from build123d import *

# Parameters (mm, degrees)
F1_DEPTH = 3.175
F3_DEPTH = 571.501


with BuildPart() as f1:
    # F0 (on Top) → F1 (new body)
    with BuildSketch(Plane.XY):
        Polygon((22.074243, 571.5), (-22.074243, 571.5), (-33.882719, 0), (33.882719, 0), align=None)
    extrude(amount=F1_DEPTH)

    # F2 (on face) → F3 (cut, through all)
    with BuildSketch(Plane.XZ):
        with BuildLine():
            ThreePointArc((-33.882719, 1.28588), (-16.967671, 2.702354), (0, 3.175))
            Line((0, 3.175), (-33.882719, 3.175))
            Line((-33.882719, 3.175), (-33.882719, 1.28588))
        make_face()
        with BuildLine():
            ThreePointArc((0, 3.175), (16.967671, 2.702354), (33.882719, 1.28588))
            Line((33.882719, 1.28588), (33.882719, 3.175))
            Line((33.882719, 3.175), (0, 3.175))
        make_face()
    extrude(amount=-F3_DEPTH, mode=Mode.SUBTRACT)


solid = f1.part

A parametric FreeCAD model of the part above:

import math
import FreeCAD as App
import Part
import Sketcher
Q = App.Units.Quantity


def add_polygon(sketch, points):
    """Adds a closed chain of lines whose ends are joined by coincident constraints."""
    first, n = sketch.GeometryCount, len(points)
    for a, b in zip(points, points[1:] + points[:1]):
        sketch.addGeometry(Part.LineSegment(App.Vector(*a, 0), App.Vector(*b, 0)), False)
    for i in range(n):
        sketch.addConstraint(Sketcher.Constraint("Coincident", first + i, 2, first + (i + 1) % n, 1))

doc = App.newDocument("Part")
body = doc.addObject("PartDesign::Body", "Body")

sketch1 = doc.addObject("Sketcher::SketchObject", "Sketch")
body.addObject(sketch1)
sketch1.AttachmentSupport = (doc.XY_Plane, [""])
sketch1.MapMode = "FlatFace"
add_polygon(sketch1, [(22, 572), (-22, 572), (-34, 0), (34, 0)])
sketch1.addConstraint([
    Sketcher.Constraint("Horizontal", 0),
    Sketcher.Constraint("Horizontal", 2),
    Sketcher.Constraint("Symmetric", 1, 2, 2, 2, -1, 1),
    Sketcher.Constraint("Equal", 1, 3),
    Sketcher.Constraint("DistanceY", -1, 1, 0, 2, Q("22.5 in")),
    Sketcher.Constraint("DistanceX", 2, 1, 2, 2, Q("67.765438 mm")),
    Sketcher.Constraint("Distance", 1, Q("571.621982 mm")),
])
pad1 = doc.addObject("PartDesign::Pad", "Pad")
body.addObject(pad1)
pad1.Profile = sketch1
pad1.Length = Q("0.125 in")

sketch2 = doc.addObject("Sketcher::SketchObject", "Sketch001")
body.addObject(sketch2)
sketch2.AttachmentSupport = (doc.XZ_Plane, [""])
sketch2.MapMode = "FlatFace"
sketch2.addGeometry([
    Part.ArcOfCircle(Part.Circle(App.Vector(0, -301.6, 0), App.Vector(0, 0, 1), 304.8), math.radians(90), math.radians(96.38)),
    Part.LineSegment(App.Vector(0, 3.2, 0), App.Vector(-33.9, 3.2, 0)),
    Part.LineSegment(App.Vector(-33.9, 3.2, 0), App.Vector(-33.9, 1.3, 0)),
    Part.ArcOfCircle(Part.Circle(App.Vector(0, -301.6, 0), App.Vector(0, 0, 1), 304.8), math.radians(83.62), math.radians(90)),
    Part.LineSegment(App.Vector(33.9, 1.3, 0), App.Vector(33.9, 3.2, 0)),
    Part.LineSegment(App.Vector(33.9, 3.2, 0), App.Vector(0, 3.2, 0)),
], False)
sketch2.addConstraint([
    Sketcher.Constraint("Tangent", 0, 1, 1, 1),
    Sketcher.Constraint("Coincident", 1, 2, 2, 1),
    Sketcher.Constraint("Coincident", 2, 2, 0, 2),
    Sketcher.Constraint("Coincident", 3, 1, 4, 1),
    Sketcher.Constraint("Coincident", 4, 2, 5, 1),
    Sketcher.Constraint("Tangent", 5, 2, 3, 2),
    Sketcher.Constraint("Horizontal", 1),
    Sketcher.Constraint("Vertical", 2),
    Sketcher.Constraint("Vertical", 4),
    Sketcher.Constraint("Horizontal", 5),
    Sketcher.Constraint("Coincident", 5, 2, 0, 1),
    Sketcher.Constraint("Equal", 0, 3),
    Sketcher.Constraint("Symmetric", 2, 2, 3, 1, -2),
    Sketcher.Constraint("DistanceY", -1, 1, 0, 1, Q("0.125 in")),
    Sketcher.Constraint("Radius", 0, Q("304.799665 mm")),
    Sketcher.Constraint("DistanceX", 1, 2, 1, 1, Q("33.882719 mm")),
])
pocket1 = doc.addObject("PartDesign::Pocket", "Pocket")
body.addObject(pocket1)
pocket1.Profile = sketch2
pocket1.Type = "ThroughAll"

doc.recompute()
